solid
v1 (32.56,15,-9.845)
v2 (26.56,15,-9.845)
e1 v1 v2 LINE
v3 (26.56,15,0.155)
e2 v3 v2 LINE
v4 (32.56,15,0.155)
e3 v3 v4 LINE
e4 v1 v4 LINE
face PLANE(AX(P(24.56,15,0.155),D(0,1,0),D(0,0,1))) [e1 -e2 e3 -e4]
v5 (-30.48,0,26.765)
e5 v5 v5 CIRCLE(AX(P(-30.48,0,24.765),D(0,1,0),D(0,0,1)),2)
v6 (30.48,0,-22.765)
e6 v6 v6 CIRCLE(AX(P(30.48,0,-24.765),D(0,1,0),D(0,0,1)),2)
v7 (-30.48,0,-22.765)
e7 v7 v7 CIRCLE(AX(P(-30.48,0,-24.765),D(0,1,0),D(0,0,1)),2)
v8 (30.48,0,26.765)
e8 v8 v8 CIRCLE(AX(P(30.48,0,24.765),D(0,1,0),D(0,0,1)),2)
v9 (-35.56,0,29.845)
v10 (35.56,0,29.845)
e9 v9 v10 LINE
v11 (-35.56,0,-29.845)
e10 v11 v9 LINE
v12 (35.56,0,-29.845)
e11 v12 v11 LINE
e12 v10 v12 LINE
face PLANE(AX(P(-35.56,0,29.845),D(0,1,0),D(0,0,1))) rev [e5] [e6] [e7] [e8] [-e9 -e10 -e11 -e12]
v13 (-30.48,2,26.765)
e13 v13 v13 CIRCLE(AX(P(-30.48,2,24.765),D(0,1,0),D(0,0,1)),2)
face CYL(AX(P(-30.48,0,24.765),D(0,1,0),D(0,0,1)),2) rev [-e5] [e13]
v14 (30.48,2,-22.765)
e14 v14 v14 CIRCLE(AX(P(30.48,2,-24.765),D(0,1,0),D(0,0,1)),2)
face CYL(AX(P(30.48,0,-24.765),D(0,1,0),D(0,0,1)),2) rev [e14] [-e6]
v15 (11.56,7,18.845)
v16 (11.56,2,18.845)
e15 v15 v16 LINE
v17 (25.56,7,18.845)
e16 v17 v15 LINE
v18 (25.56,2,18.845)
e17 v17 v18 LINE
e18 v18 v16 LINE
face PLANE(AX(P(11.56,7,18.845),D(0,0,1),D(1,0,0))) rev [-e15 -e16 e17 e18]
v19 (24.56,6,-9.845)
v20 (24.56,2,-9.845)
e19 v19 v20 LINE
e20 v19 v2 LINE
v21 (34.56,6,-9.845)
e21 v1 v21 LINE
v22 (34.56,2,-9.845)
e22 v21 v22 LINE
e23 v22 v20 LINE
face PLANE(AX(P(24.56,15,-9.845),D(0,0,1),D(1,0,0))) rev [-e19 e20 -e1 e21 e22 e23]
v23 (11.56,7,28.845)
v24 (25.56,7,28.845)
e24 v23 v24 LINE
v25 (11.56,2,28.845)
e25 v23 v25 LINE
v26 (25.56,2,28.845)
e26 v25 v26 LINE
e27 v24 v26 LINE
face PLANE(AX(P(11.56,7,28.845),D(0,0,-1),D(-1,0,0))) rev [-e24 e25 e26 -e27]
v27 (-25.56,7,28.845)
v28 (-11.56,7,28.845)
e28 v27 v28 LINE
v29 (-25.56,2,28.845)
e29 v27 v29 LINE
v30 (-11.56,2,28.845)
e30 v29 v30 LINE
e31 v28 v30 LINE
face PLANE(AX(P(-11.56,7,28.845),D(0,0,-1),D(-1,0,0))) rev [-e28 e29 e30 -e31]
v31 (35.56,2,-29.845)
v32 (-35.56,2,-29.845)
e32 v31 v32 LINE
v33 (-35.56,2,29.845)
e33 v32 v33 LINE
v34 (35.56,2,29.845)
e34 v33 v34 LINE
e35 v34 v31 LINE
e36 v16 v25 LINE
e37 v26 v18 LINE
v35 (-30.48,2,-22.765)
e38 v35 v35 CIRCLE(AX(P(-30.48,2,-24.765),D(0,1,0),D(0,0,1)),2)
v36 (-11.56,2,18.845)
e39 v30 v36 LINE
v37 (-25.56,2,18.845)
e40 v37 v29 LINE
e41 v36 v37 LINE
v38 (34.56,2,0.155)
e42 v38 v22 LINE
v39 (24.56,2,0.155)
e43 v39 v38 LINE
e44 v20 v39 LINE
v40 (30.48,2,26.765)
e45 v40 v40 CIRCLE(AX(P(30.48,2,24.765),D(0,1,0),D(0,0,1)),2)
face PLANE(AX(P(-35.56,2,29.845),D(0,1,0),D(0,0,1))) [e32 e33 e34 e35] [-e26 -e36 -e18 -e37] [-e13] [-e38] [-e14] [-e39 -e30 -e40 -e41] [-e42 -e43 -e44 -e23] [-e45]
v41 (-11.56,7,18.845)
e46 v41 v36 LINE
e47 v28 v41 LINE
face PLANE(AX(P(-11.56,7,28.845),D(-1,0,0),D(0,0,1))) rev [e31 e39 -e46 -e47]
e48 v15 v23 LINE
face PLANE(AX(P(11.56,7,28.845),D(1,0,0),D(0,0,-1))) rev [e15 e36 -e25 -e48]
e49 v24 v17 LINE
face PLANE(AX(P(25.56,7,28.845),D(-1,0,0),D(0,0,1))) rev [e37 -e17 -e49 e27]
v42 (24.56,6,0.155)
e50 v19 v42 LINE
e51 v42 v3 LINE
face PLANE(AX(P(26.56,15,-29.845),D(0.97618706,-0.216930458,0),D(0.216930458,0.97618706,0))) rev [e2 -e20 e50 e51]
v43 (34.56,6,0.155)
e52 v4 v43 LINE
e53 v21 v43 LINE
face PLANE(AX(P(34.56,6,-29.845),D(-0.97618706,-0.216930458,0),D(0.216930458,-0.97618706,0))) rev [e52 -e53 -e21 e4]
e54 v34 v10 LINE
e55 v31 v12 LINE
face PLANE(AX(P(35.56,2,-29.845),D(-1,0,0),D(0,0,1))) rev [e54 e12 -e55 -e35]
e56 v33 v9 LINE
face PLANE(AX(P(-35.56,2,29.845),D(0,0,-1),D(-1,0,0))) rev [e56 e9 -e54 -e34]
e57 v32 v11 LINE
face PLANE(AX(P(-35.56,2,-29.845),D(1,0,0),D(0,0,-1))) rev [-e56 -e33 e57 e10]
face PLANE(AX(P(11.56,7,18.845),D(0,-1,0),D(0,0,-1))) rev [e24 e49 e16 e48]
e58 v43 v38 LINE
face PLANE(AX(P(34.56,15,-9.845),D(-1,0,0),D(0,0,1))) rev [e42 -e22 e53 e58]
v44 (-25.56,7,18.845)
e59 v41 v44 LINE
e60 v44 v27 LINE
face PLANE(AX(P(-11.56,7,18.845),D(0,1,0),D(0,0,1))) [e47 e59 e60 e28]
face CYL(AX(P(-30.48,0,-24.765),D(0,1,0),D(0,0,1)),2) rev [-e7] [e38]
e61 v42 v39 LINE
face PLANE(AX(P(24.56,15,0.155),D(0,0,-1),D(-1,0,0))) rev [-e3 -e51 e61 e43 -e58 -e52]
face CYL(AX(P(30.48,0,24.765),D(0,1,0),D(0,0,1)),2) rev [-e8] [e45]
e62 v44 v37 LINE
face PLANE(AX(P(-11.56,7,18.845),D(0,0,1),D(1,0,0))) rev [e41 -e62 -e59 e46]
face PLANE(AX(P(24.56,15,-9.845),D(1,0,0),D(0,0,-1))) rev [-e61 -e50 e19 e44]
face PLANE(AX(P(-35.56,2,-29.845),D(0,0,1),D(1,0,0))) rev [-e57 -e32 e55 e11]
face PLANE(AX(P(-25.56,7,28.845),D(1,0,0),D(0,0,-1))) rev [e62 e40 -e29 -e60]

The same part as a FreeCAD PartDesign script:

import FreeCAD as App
import Part
import Sketcher

V = App.Vector

doc = App.newDocument("Part")
body = doc.addObject("PartDesign::Body", "Body")

# Sketch on XZ plane
sketch1 = body.newObject("Sketcher::SketchObject", "Sketch")
sketch1.AttachmentSupport = (doc.getObject("XZ_Plane"), [""])
sketch1.MapMode = "FlatFace"
sketch1.addGeometry([
    Part.LineSegment(V(-35.56, -29.845, 0), V(-35.56, 29.845, 0)),
    Part.LineSegment(V(-35.56, 29.845, 0), V(35.56, 29.845, 0)),
    Part.LineSegment(V(35.56, 29.845, 0), V(35.56, -29.845, 0)),
    Part.LineSegment(V(35.56, -29.845, 0), V(-35.56, -29.845, 0)),
], False)
sketch1.addConstraint([
    Sketcher.Constraint("Coincident", 0, 2, 1, 1),
    Sketcher.Constraint("Coincident", 1, 2, 2, 1),
    Sketcher.Constraint("Coincident", 2, 2, 3, 1),
    Sketcher.Constraint("Coincident", 3, 2, 0, 1),
    Sketcher.Constraint("Vertical", 0),
    Sketcher.Constraint("Horizontal", 1),
    Sketcher.Constraint("Vertical", 2),
    Sketcher.Constraint("Horizontal", 3),
    Sketcher.Constraint("Symmetric", 0, 2, 2, 2, -1, 1),
    Sketcher.Constraint("DistanceX", 1, 1, 1, 2, 71.12),
    Sketcher.Constraint("DistanceY", 0, 1, 0, 2, 59.69),
])
pad1 = body.newObject("PartDesign::Pad", "Pad")
pad1.Profile = sketch1
pad1.Length = 2
pad1.Reversed = True

# Sketch on XZ plane
sketch2 = body.newObject("Sketcher::SketchObject", "Sketch001")
sketch2.AttachmentSupport = (doc.getObject("XZ_Plane"), [""])
sketch2.MapMode = "FlatFace"
sketch2.AttachmentOffset = App.Placement(V(0, 0, -2), App.Rotation())
sketch2.addGeometry([
    Part.Circle(V(-30.48, -24.765, 0), V(0, 0, 1), 2),
    Part.Circle(V(30.48, -24.765, 0), V(0, 0, 1), 2),
    Part.Circle(V(30.48, 24.765, 0), V(0, 0, 1), 2),
    Part.Circle(V(-30.48, 24.765, 0), V(0, 0, 1), 2),
], False)
sketch2.addConstraint([
    Sketcher.Constraint("Equal", 0, 1),
    Sketcher.Constraint("Equal", 1, 2),
    Sketcher.Constraint("Equal", 2, 3),
    Sketcher.Constraint("Symmetric", 0, 3, 2, 3, -1, 1),
    Sketcher.Constraint("Symmetric", 1, 3, 3, 3, -1, 1),
    Sketcher.Constraint("Symmetric", 0, 3, 1, 3, -2),
    Sketcher.Constraint("Diameter", 0, 4.0),
    Sketcher.Constraint("DistanceX", 0, 3, -1, 1, 30.48),
    Sketcher.Constraint("DistanceY", 1, 3, 2, 3, 49.53),
])
pocket1 = body.newObject("PartDesign::Pocket", "Pocket")
pocket1.Profile = sketch2
pocket1.Length = 2
pocket1.Reversed = True

# Sketch on XZ plane
sketch3 = body.newObject("Sketcher::SketchObject", "Sketch002")
sketch3.AttachmentSupport = (doc.getObject("XZ_Plane"), [""])
sketch3.MapMode = "FlatFace"
sketch3.AttachmentOffset = App.Placement(V(0, 0, -2), App.Rotation())
sketch3.addGeometry([
    Part.LineSegment(V(-25.56, 18.845, 0), V(-25.56, 28.845, 0)),  # 0
    Part.LineSegment(V(-25.56, 28.845, 0), V(-11.56, 28.845, 0)),  # 1
    Part.LineSegment(V(-11.56, 28.845, 0), V(-11.56, 18.845, 0)),  # 2
    Part.LineSegment(V(-11.56, 18.845, 0), V(-25.56, 18.845, 0)),  # 3
    Part.LineSegment(V(11.56, 18.845, 0), V(11.56, 28.845, 0)),  # 4
    Part.LineSegment(V(11.56, 28.845, 0), V(25.56, 28.845, 0)),  # 5
    Part.LineSegment(V(25.56, 28.845, 0), V(25.56, 18.845, 0)),  # 6
    Part.LineSegment(V(25.56, 18.845, 0), V(11.56, 18.845, 0)),  # 7
], False)
sketch3.addConstraint([
    Sketcher.Constraint("Coincident", 0, 2, 1, 1),
    Sketcher.Constraint("Coincident", 1, 2, 2, 1),
    Sketcher.Constraint("Coincident", 2, 2, 3, 1),
    Sketcher.Constraint("Coincident", 3, 2, 0, 1),
    Sketcher.Constraint("Coincident", 4, 2, 5, 1),
    Sketcher.Constraint("Coincident", 5, 2, 6, 1),
    Sketcher.Constraint("Coincident", 6, 2, 7, 1),
    Sketcher.Constraint("Coincident", 7, 2, 4, 1),
    Sketcher.Constraint("Vertical", 0),
    Sketcher.Constraint("Horizontal", 1),
    Sketcher.Constraint("Vertical", 2),
    Sketcher.Constraint("Horizontal", 3),
    Sketcher.Constraint("Vertical", 4),
    Sketcher.Constraint("Horizontal", 5),
    Sketcher.Constraint("Vertical", 6),
    Sketcher.Constraint("Horizontal", 7),
    Sketcher.Constraint("Symmetric", 1, 2, 4, 2, -2),
    Sketcher.Constraint("Symmetric", 3, 2, 6, 2, -2),
    Sketcher.Constraint("DistanceX", 1, 1, 1, 2, 14.0),
    Sketcher.Constraint("DistanceY", 0, 1, 0, 2, 10.0),
    Sketcher.Constraint("DistanceX", 0, 2, -1, 1, 25.56),
    Sketcher.Constraint("DistanceY", -1, 1, 0, 2, 28.845),
])
pad2 = body.newObject("PartDesign::Pad", "Pad001")
pad2.Profile = sketch3
pad2.Length = 5
pad2.Reversed = True

# Sketch on XZ plane
sketch4 = body.newObject("Sketcher::SketchObject", "Sketch003")
sketch4.AttachmentSupport = (doc.getObject("XZ_Plane"), [""])
sketch4.MapMode = "FlatFace"
sketch4.AttachmentOffset = App.Placement(V(0, 0, -2), App.Rotation())
sketch4.addGeometry([
    Part.LineSegment(V(24.56, -9.845, 0), V(24.56, 0.155, 0)),
    Part.LineSegment(V(24.56, 0.155, 0), V(34.56, 0.155, 0)),
    Part.LineSegment(V(34.56, 0.155, 0), V(34.56, -9.845, 0)),
    Part.LineSegment(V(34.56, -9.845, 0), V(24.56, -9.845, 0)),
], False)
sketch4.addConstraint([
    Sketcher.Constraint("Coincident", 0, 2, 1, 1),
    Sketcher.Constraint("Coincident", 1, 2, 2, 1),
    Sketcher.Constraint("Coincident", 2, 2, 3, 1),
    Sketcher.Constraint("Coincident", 3, 2, 0, 1),
    Sketcher.Constraint("Vertical", 0),
    Sketcher.Constraint("Horizontal", 1),
    Sketcher.Constraint("Vertical", 2),
    Sketcher.Constraint("Horizontal", 3),
    Sketcher.Constraint("Equal", 3, 0),
    Sketcher.Constraint("DistanceX", 1, 1, 1, 2, 10.0),
    Sketcher.Constraint("DistanceX", -1, 1, 0, 2, 24.56),
    Sketcher.Constraint("DistanceY", -1, 1, 0, 2, 0.155),
])
pad3 = body.newObject("PartDesign::Pad", "Pad002")
pad3.Profile = sketch4
pad3.Length = 13
pad3.Reversed = True

# Sketch on XY plane
sketch5 = body.newObject("Sketcher::SketchObject", "Sketch004")
sketch5.AttachmentSupport = (doc.getObject("XY_Plane"), [""])
sketch5.MapMode = "FlatFace"
sketch5.AttachmentOffset = App.Placement(V(0, 0, 0.155), App.Rotation())
sketch5.addGeometry([
    Part.LineSegment(V(24.56, 6, 0), V(26.56, 15, 0)),  # 0
    Part.LineSegment(V(26.56, 15, 0), V(24.56, 15, 0)),  # 1
    Part.LineSegment(V(24.56, 15, 0), V(24.56, 6, 0)),  # 2
    Part.LineSegment(V(32.56, 15, 0), V(34.56, 6, 0)),  # 3
    Part.LineSegment(V(34.56, 6, 0), V(34.56, 15, 0)),  # 4
    Part.LineSegment(V(34.56, 15, 0), V(32.56, 15, 0)),  # 5
], False)
sketch5.addConstraint([
    Sketcher.Constraint("Coincident", 0, 2, 1, 1),
    Sketcher.Constraint("Coincident", 1, 2, 2, 1),
    Sketcher.Constraint("Coincident", 2, 2, 0, 1),
    Sketcher.Constraint("Coincident", 3, 2, 4, 1),
    Sketcher.Constraint("Coincident", 4, 2, 5, 1),
    Sketcher.Constraint("Coincident", 5, 2, 3, 1),
    Sketcher.Constraint("Horizontal", 1),
    Sketcher.Constraint("Vertical", 2),
    Sketcher.Constraint("Vertical", 4),
    Sketcher.Constraint("Horizontal", 5),
    Sketcher.Constraint("Horizontal", 2, 2, 3, 2),
    Sketcher.Constraint("Horizontal", 1, 2, 4, 2),
    Sketcher.Constraint("Equal", 1, 5),
    Sketcher.Constraint("DistanceX", 1, 2, 1, 1, 2.0),
    Sketcher.Constraint("DistanceY", 2, 2, 2, 1, 9.0),
    Sketcher.Constraint("DistanceY", -1, 1, 0, 2, 15.0),
    Sketcher.Constraint("DistanceX", 2, 2, 3, 2, 10.0),
    Sketcher.Constraint("DistanceX", -1, 1, 0, 2, 26.56),
])
pocket2 = body.newObject("PartDesign::Pocket", "Pocket001")
pocket2.Profile = sketch5
pocket2.Type = "ThroughAll"

doc.recompute()
